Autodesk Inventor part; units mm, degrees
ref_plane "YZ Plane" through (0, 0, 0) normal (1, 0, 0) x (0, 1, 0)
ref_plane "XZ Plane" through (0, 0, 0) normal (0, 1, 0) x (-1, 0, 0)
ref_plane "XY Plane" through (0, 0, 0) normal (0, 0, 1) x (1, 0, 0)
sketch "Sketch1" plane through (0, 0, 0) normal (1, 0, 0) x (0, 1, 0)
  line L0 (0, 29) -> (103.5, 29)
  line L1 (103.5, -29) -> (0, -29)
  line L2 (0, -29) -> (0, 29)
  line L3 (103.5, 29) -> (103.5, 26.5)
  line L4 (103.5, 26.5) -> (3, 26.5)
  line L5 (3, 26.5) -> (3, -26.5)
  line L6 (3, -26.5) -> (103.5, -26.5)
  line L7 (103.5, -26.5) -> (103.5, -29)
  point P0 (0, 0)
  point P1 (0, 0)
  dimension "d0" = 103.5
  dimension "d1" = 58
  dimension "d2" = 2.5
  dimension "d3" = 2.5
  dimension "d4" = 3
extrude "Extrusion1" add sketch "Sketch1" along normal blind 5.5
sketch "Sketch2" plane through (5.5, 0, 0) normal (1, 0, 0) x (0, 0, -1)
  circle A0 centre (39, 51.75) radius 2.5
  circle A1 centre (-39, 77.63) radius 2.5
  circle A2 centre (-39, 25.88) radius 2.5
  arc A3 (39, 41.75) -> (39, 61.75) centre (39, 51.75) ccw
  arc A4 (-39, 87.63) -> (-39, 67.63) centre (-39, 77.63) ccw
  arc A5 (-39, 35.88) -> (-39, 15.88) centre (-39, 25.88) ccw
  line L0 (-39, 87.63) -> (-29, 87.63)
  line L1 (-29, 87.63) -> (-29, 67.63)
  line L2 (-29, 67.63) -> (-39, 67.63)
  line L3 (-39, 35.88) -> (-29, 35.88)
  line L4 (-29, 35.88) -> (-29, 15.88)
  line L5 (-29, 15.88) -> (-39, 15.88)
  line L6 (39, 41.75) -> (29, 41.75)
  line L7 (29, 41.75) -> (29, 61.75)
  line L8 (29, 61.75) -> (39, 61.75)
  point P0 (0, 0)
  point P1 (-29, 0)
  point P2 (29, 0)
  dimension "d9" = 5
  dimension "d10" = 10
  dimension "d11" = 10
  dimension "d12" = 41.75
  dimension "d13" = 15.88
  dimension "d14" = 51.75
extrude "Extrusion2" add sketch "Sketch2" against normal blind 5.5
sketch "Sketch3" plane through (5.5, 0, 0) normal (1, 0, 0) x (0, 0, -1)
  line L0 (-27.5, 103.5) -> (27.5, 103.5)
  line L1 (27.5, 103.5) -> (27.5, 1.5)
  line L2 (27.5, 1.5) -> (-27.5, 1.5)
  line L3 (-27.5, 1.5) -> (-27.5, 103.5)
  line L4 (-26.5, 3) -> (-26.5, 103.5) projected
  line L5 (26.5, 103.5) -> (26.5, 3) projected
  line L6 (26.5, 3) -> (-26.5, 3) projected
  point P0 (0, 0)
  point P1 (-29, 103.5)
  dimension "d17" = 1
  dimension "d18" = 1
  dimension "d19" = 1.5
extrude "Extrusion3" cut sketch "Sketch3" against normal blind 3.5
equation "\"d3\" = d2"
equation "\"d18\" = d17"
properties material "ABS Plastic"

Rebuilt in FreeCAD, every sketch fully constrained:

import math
import FreeCAD as App
import Part
import Sketcher
Q = App.Units.Quantity


def add_polygon(sketch, points):
    """Adds a closed chain of lines whose ends are joined by coincident constraints."""
    first, n = sketch.GeometryCount, len(points)
    for a, b in zip(points, points[1:] + points[:1]):
        sketch.addGeometry(Part.LineSegment(App.Vector(*a, 0), App.Vector(*b, 0)), False)
    for i in range(n):
        sketch.addConstraint(Sketcher.Constraint("Coincident", first + i, 2, first + (i + 1) % n, 1))

doc = App.newDocument("Part")
body = doc.addObject("PartDesign::Body", "Body")

# Sketch on YZ plane
sketch1 = body.newObject("Sketcher::SketchObject", "Sketch")
sketch1.AttachmentSupport = (doc.getObject("YZ_Plane"), [""])
sketch1.MapMode = "FlatFace"
add_polygon(sketch1, [(103.5, 29), (0, 29), (0, -29), (103.5, -29), (103.5, -26.5), (3, -26.5), (3, 26.5), (103.5, 26.5)])  # lines 0-7
sketch1.addConstraint([
    Sketcher.Constraint("Horizontal", 0),
    Sketcher.Constraint("Vertical", 1),
    Sketcher.Constraint("Horizontal", 2),
    Sketcher.Constraint("Vertical", 3),
    Sketcher.Constraint("Horizontal", 4),
    Sketcher.Constraint("Vertical", 5),
    Sketcher.Constraint("Horizontal", 6),
    Sketcher.Constraint("Vertical", 7),
    Sketcher.Constraint("Symmetric", 0, 2, 1, 2, -1, 1),
    Sketcher.Constraint("Symmetric", 3, 2, 6, 2, -1),
    Sketcher.Constraint("DistanceY", 1, 2, 1, 1, Q("58 mm")),
    Sketcher.Constraint("DistanceX", 0, 2, 0, 1, Q("103.5 mm")),
    Sketcher.Constraint("DistanceY", 3, 1, 3, 2, Q("2.5 mm")),
    Sketcher.Constraint("DistanceX", -1, 1, 4, 2, Q("3 mm")),
])
pad1 = body.newObject("PartDesign::Pad", "Pad")
pad1.Profile = sketch1
pad1.Length = 5.5

# Sketch on YZ plane
sketch2 = body.newObject("Sketcher::SketchObject", "Sketch001")
sketch2.AttachmentSupport = (doc.getObject("YZ_Plane"), [""])
sketch2.MapMode = "FlatFace"
sketch2.AttachmentOffset = App.Placement(App.Vector(0, 0, 5.5), App.Rotation())
sketch2.addGeometry([
    Part.LineSegment(App.Vector(41.8, -29, 0), App.Vector(41.8, -39, 0)),  # 0
    Part.ArcOfCircle(Part.Circle(App.Vector(51.8, -39, 0), App.Vector(0, 0, 1), 10), math.radians(180), math.radians(360)),  # 1
    Part.LineSegment(App.Vector(61.8, -39, 0), App.Vector(61.8, -29, 0)),  # 2
    Part.LineSegment(App.Vector(61.8, -29, 0), App.Vector(41.8, -29, 0)),  # 3
    Part.Circle(App.Vector(51.8, -39, 0), App.Vector(0, 0, 1), 2.5),  # 4
    Part.LineSegment(App.Vector(87.6, 29, 0), App.Vector(87.6, 39, 0)),  # 5
    Part.ArcOfCircle(Part.Circle(App.Vector(77.6, 39, 0), App.Vector(0, 0, 1), 10), math.radians(0), math.radians(180)),  # 6
    Part.LineSegment(App.Vector(67.6, 39, 0), App.Vector(67.6, 29, 0)),  # 7
    Part.LineSegment(App.Vector(67.6, 29, 0), App.Vector(87.6, 29, 0)),  # 8
    Part.Circle(App.Vector(77.6, 39, 0), App.Vector(0, 0, 1), 2.5),  # 9
    Part.LineSegment(App.Vector(35.9, 29, 0), App.Vector(35.9, 39, 0)),  # 10
    Part.ArcOfCircle(Part.Circle(App.Vector(25.9, 39, 0), App.Vector(0, 0, 1), 10), math.radians(0), math.radians(180)),  # 11
    Part.LineSegment(App.Vector(15.9, 39, 0), App.Vector(15.9, 29, 0)),  # 12
    Part.LineSegment(App.Vector(15.9, 29, 0), App.Vector(35.9, 29, 0)),  # 13
    Part.Circle(App.Vector(25.9, 39, 0), App.Vector(0, 0, 1), 2.5),  # 14
], False)
sketch2.addConstraint([
    Sketcher.Constraint("Tangent", 0, 2, 1, 1),
    Sketcher.Constraint("Tangent", 1, 2, 2, 1),
    Sketcher.Constraint("Coincident", 2, 2, 3, 1),
    Sketcher.Constraint("Coincident", 3, 2, 0, 1),
    Sketcher.Constraint("Tangent", 5, 2, 6, 1),
    Sketcher.Constraint("Tangent", 6, 2, 7, 1),
    Sketcher.Constraint("Coincident", 7, 2, 8, 1),
    Sketcher.Constraint("Coincident", 8, 2, 5, 1),
    Sketcher.Constraint("Tangent", 10, 2, 11, 1),
    Sketcher.Constraint("Tangent", 11, 2, 12, 1),
    Sketcher.Constraint("Coincident", 12, 2, 13, 1),
    Sketcher.Constraint("Coincident", 13, 2, 10, 1),
    Sketcher.Constraint("Vertical", 0),
    Sketcher.Constraint("Vertical", 2),
    Sketcher.Constraint("Horizontal", 3),
    Sketcher.Constraint("Vertical", 5),
    Sketcher.Constraint("Vertical", 7),
    Sketcher.Constraint("Horizontal", 8),
    Sketcher.Constraint("Vertical", 10),
    Sketcher.Constraint("Vertical", 12),
    Sketcher.Constraint("Horizontal", 13),
    Sketcher.Constraint("Coincident", 4, 3, 1, 3),
    Sketcher.Constraint("Coincident", 9, 3, 6, 3),
    Sketcher.Constraint("Coincident", 14, 3, 11, 3),
    Sketcher.Constraint("Equal", 1, 6),
    Sketcher.Constraint("Equal", 4, 9),
    Sketcher.Constraint("Equal", 6, 11),
    Sketcher.Constraint("Equal", 9, 14),
    Sketcher.Constraint("Horizontal", 9, 3, 11, 3),
    Sketcher.Constraint("Horizontal", 8, 2, 12, 2),
    Sketcher.Constraint("Equal", 2, 5),
    Sketcher.Constraint("Diameter", 4, Q("5 mm")),
    Sketcher.Constraint("Radius", 1, Q("10 mm")),
    Sketcher.Constraint("DistanceY", 0, 2, 0, 1, Q("10 mm")),
    Sketcher.Constraint("DistanceX", -1, 1, 1, 3, Q("51.75 mm")),
    Sketcher.Constraint("DistanceX", -1, 1, 11, 2, Q("15.88 mm")),
    Sketcher.Constraint("DistanceX", 11, 3, 6, 3, Q("51.75 mm")),
    Sketcher.Constraint("DistanceY", 1, 3, -1, 1, Q("39 mm")),
    Sketcher.Constraint("DistanceY", -1, 1, 6, 3, Q("39 mm")),
])
pad2 = body.newObject("PartDesign::Pad", "Pad001")
pad2.Profile = sketch2
pad2.Length = 5.5
pad2.Reversed = True

# Sketch on YZ plane
sketch3 = body.newObject("Sketcher::SketchObject", "Sketch002")
sketch3.AttachmentSupport = (doc.getObject("YZ_Plane"), [""])
sketch3.MapMode = "FlatFace"
sketch3.AttachmentOffset = App.Placement(App.Vector(0, 0, 5.5), App.Rotation())
add_polygon(sketch3, [(104, 28), (2, 28), (2, -28), (104, -28)])  # lines 0-3
sketch3.addConstraint([
    Sketcher.Constraint("Horizontal", 0),
    Sketcher.Constraint("Vertical", 1),
    Sketcher.Constraint("Horizontal", 2),
    Sketcher.Constraint("Vertical", 3),
    Sketcher.Constraint("DistanceX", -1, 1, 0, 2, Q("1.5 mm")),
    Sketcher.Constraint("DistanceX", 0, 2, 0, 1, Q("102 mm")),
    Sketcher.Constraint("DistanceY", 1, 2, 1, 1, Q("55 mm")),
    Sketcher.Constraint("DistanceY", -1, 1, 0, 2, Q("27.5 mm")),
])
pocket1 = body.newObject("PartDesign::Pocket", "Pocket")
pocket1.Profile = sketch3
pocket1.Length = 3.5

doc.recompute()
